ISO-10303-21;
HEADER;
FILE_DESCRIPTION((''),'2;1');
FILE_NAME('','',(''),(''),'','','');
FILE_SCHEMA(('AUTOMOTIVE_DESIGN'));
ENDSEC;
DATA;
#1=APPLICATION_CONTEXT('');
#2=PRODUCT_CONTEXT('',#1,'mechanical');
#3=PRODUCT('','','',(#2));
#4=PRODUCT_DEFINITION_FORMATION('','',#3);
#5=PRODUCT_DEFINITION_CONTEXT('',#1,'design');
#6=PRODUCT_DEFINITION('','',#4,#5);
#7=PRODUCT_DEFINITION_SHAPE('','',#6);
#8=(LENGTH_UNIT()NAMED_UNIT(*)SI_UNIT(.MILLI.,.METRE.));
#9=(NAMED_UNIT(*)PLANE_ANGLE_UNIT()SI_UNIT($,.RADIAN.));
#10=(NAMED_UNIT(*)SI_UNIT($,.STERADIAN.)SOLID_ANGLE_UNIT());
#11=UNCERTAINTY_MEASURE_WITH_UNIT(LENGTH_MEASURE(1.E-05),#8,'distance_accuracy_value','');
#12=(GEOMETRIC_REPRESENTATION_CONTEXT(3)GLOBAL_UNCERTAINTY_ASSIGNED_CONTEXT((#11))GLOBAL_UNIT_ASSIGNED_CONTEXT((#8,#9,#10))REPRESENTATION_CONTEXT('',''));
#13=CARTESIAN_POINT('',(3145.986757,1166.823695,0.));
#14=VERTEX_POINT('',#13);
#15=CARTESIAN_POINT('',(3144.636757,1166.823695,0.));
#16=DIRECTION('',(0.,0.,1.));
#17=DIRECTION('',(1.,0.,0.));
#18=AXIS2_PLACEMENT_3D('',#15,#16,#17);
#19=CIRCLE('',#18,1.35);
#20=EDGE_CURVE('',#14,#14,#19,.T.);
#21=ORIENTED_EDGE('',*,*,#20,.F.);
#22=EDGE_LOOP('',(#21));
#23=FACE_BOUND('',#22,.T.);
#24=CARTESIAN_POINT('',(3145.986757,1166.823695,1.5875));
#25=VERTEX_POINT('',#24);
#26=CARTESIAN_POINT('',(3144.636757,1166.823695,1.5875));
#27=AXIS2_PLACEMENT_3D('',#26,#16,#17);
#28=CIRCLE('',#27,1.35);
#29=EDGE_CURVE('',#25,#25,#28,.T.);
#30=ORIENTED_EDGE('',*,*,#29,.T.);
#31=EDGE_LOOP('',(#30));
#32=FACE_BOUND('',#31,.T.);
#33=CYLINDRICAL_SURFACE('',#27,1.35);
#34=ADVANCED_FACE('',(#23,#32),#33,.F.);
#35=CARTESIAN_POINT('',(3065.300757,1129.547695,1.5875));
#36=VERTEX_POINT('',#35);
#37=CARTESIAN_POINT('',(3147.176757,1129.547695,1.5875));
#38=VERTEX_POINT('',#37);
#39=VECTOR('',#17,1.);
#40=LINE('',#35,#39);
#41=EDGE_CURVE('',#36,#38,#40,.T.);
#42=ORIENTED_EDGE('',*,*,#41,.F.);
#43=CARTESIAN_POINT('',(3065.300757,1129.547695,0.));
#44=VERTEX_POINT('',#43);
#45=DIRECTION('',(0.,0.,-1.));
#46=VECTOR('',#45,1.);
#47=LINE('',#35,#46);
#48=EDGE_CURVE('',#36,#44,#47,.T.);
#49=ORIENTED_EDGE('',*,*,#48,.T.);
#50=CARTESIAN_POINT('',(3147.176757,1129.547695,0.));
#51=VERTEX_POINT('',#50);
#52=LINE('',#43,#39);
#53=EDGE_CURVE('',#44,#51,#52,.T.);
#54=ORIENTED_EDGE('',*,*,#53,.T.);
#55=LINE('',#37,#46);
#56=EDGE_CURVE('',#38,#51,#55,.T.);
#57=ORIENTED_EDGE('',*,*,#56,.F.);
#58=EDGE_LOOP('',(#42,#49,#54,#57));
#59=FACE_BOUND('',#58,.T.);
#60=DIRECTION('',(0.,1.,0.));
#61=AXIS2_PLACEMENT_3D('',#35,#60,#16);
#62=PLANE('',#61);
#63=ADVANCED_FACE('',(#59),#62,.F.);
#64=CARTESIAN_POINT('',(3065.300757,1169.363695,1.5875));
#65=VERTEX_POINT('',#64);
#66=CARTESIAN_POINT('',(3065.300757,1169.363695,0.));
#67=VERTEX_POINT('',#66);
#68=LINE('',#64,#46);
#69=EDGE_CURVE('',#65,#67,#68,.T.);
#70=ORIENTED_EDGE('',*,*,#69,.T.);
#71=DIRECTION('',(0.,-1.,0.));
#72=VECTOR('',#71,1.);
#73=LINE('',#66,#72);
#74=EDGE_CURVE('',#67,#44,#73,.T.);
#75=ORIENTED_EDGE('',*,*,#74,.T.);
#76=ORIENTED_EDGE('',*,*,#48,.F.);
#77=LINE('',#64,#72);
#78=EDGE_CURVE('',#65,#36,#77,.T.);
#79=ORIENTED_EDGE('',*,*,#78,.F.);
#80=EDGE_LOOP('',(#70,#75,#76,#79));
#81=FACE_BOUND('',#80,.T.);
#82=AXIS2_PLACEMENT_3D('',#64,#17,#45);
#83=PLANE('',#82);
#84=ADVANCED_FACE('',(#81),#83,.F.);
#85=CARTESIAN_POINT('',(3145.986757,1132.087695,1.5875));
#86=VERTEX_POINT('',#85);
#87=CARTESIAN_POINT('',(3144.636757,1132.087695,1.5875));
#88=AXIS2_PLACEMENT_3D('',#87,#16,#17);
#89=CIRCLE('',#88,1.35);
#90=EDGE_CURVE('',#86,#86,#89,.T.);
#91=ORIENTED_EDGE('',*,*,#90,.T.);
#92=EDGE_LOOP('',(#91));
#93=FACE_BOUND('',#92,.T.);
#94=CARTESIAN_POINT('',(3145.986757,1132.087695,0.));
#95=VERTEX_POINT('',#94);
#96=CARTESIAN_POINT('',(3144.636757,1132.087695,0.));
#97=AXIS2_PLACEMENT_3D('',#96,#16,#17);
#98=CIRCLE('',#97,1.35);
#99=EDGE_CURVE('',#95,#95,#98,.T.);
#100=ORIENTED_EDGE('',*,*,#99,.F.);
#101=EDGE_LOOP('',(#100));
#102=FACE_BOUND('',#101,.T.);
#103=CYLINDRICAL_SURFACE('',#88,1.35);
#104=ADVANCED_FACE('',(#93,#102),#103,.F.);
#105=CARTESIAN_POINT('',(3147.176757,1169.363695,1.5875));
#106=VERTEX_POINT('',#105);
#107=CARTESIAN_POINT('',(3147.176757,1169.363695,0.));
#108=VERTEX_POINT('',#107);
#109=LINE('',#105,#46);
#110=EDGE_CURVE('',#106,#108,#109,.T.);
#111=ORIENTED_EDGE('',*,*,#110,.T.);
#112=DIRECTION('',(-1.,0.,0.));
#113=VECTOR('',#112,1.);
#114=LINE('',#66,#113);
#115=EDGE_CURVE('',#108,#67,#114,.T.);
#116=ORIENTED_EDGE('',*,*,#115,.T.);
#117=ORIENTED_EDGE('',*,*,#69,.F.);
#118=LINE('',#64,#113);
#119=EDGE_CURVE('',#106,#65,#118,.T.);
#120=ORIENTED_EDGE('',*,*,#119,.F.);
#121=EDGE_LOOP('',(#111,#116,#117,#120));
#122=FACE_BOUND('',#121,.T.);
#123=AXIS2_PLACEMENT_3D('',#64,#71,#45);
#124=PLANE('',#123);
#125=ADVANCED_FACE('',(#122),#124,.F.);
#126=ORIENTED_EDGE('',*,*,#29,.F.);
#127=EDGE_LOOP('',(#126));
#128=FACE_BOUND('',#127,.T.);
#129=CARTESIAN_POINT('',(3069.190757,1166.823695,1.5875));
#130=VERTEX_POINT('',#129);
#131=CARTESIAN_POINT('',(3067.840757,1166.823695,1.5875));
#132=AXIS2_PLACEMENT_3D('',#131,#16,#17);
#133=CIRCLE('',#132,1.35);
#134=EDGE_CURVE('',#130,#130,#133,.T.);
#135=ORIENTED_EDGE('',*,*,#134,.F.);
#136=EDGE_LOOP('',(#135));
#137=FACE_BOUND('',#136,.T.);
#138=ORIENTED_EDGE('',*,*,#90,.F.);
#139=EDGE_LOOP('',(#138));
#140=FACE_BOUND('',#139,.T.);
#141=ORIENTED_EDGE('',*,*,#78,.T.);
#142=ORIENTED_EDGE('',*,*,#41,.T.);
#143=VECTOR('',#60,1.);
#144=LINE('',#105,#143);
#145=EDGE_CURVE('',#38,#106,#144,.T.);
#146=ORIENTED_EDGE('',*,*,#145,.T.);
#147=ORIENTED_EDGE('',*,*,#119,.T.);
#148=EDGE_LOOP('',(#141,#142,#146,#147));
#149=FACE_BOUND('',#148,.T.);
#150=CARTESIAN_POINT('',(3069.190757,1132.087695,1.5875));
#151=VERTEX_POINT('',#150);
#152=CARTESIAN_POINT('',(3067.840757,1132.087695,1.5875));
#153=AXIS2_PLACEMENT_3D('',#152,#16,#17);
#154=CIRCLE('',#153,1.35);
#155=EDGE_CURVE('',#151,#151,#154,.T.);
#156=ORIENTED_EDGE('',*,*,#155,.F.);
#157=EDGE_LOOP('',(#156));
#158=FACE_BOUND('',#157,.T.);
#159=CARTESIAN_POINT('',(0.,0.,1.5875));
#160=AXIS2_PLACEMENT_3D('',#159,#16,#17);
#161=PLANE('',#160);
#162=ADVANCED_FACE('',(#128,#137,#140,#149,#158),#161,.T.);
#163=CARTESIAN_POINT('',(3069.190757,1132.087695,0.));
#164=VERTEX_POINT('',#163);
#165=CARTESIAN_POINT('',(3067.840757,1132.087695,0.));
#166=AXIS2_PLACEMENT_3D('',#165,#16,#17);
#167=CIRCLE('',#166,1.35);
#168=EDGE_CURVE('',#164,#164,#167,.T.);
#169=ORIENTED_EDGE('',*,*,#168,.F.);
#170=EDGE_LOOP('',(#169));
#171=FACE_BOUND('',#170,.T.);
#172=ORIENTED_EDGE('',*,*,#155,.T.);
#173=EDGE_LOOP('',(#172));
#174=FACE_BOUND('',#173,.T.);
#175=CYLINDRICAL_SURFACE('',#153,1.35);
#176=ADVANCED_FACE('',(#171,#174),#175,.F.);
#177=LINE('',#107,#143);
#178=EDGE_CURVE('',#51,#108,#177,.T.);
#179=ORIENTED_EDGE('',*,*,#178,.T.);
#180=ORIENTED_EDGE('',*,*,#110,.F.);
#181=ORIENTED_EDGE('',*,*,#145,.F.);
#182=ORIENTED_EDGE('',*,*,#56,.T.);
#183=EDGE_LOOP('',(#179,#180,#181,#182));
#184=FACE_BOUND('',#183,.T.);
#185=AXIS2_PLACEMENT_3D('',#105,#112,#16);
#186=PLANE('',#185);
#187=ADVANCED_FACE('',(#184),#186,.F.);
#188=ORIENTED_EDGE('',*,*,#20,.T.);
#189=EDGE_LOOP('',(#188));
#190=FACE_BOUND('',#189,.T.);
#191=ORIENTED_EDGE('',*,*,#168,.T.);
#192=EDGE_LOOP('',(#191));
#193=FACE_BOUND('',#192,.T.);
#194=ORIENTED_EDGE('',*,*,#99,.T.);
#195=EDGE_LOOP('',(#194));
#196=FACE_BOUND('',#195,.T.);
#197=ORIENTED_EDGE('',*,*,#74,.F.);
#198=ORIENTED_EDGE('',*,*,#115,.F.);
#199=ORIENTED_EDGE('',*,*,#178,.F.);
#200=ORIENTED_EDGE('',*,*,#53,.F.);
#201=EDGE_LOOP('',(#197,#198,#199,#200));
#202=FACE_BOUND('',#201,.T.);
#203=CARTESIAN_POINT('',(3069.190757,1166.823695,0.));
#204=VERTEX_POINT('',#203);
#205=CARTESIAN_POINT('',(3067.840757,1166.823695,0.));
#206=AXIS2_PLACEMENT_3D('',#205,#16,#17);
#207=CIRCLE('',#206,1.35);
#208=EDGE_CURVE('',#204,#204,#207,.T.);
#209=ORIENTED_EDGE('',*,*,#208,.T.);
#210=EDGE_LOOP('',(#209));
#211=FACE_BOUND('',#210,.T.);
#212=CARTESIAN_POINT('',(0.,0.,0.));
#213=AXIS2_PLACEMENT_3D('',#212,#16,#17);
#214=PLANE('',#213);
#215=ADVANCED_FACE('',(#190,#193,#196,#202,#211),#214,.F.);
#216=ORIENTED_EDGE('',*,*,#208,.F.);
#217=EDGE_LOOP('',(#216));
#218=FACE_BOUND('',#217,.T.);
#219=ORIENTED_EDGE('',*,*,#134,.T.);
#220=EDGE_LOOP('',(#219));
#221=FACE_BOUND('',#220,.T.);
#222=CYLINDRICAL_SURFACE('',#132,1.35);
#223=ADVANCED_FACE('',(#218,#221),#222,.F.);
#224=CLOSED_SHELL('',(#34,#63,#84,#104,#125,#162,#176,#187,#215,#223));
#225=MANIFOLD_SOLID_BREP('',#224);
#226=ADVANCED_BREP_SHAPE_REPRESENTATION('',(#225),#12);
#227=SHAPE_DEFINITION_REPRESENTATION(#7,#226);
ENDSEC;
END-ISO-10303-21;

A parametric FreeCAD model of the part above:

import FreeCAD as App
import Part
import Sketcher
from FreeCAD import Vector
Q = App.Units.Quantity


def add_polygon(sketch, points):
    """Adds a closed chain of lines whose ends are joined by coincident constraints."""
    first, n = sketch.GeometryCount, len(points)
    for a, b in zip(points, points[1:] + points[:1]):
        sketch.addGeometry(Part.LineSegment(App.Vector(*a, 0), App.Vector(*b, 0)), False)
    for i in range(n):
        sketch.addConstraint(Sketcher.Constraint("Coincident", first + i, 2, first + (i + 1) % n, 1))

doc = App.newDocument("Part")
body = doc.addObject("PartDesign::Body", "Body")

# Sketch on XY plane
sketch1 = body.newObject("Sketcher::SketchObject", "Sketch")
sketch1.AttachmentSupport = (doc.getObject("XY_Plane"), [""])
sketch1.MapMode = "FlatFace"
add_polygon(sketch1, [(3065, 1169), (3065, 1130), (3147, 1130), (3147, 1169)])  # lines 0-3
sketch1.addConstraint([
    Sketcher.Constraint("Vertical", 0),
    Sketcher.Constraint("Horizontal", 1),
    Sketcher.Constraint("Vertical", 2),
    Sketcher.Constraint("Horizontal", 3),
    Sketcher.Constraint("DistanceX", 1, 1, 1, 2, Q("81.876 mm")),
    Sketcher.Constraint("DistanceY", 0, 2, 0, 1, Q("39.816 mm")),
    Sketcher.Constraint("DistanceX", -1, 1, 0, 2, Q("3065.300757 mm")),
    Sketcher.Constraint("DistanceY", -1, 1, 0, 2, Q("1129.547695 mm")),
])
pad1 = body.newObject("PartDesign::Pad", "Pad")
pad1.Profile = sketch1
pad1.Length = 1.5875

# Sketch on XY plane
sketch2 = body.newObject("Sketcher::SketchObject", "Sketch001")
sketch2.AttachmentSupport = (doc.getObject("XY_Plane"), [""])
sketch2.MapMode = "FlatFace"
sketch2.AttachmentOffset = App.Placement(Vector(0, 0, 1.5875), App.Rotation())
sketch2.addGeometry([
    Part.Circle(Vector(3144.6, 1132.1, 0), Vector(0, 0, 1), 1.4),
    Part.Circle(Vector(3067.8, 1132.1, 0), Vector(0, 0, 1), 1.4),
    Part.Circle(Vector(3144.6, 1166.8, 0), Vector(0, 0, 1), 1.4),
    Part.Circle(Vector(3067.8, 1166.8, 0), Vector(0, 0, 1), 1.4),
], False)
sketch2.addConstraint([
    Sketcher.Constraint("Equal", 0, 1),
    Sketcher.Constraint("Equal", 1, 2),
    Sketcher.Constraint("Equal", 2, 3),
    Sketcher.Constraint("Horizontal", 0, 3, 1, 3),
    Sketcher.Constraint("Horizontal", 2, 3, 3, 3),
    Sketcher.Constraint("Vertical", 0, 3, 2, 3),
    Sketcher.Constraint("Vertical", 1, 3, 3, 3),
    Sketcher.Constraint("Diameter", 0, Q("2.7 mm")),
    Sketcher.Constraint("DistanceX", 1, 3, 0, 3, Q("76.796 mm")),
    Sketcher.Constraint("DistanceY", 0, 3, 2, 3, Q("34.736 mm")),
    Sketcher.Constraint("DistanceX", -1, 1, 0, 3, Q("3144.636757 mm")),
    Sketcher.Constraint("DistanceY", -1, 1, 0, 3, Q("1132.087695 mm")),
])
doc.recompute()
hole = body.newObject("PartDesign::Hole", "Hole")
hole.Profile = sketch2
hole.ThreadType = "None"
hole.Diameter = 2.7
hole.DepthType = "ThroughAll"

doc.recompute()
